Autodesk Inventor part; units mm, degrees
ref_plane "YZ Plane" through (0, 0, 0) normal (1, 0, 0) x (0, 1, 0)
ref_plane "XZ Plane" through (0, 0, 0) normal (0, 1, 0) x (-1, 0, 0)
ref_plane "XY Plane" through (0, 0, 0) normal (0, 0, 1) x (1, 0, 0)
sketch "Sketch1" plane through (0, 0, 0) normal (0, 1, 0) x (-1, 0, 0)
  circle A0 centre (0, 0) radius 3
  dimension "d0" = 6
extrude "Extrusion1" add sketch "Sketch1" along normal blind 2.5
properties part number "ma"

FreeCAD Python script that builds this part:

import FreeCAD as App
import Part
import Sketcher
Q = App.Units.Quantity

doc = App.newDocument("Part")
params = doc.addObject("Spreadsheet::Sheet", "Params")
for row, (alias, value) in enumerate([
    ("sketch1_diameter", "6 mm"),
    ("pad1_length", "2.5 mm"),
], start=1):
    params.set(f"A{row}", alias)
    params.set(f"B{row}", "=" + value)
    params.setAlias(f"B{row}", alias)

body = doc.addObject("PartDesign::Body", "Body")

sketch1 = body.newObject("Sketcher::SketchObject", "Sketch")
sketch1.AttachmentSupport = (doc.getObject("XZ_Plane"), [""])
sketch1.MapMode = "FlatFace"
sketch1.addGeometry(Part.Circle(App.Vector(0, 0, 0), App.Vector(0, 0, 1), 3), False)
sketch1.addConstraint([
    Sketcher.Constraint("Coincident", 0, 3, -1, 1),
    Sketcher.Constraint("Diameter", 0, Q("6 mm")),
])
sketch1.setExpression("Constraints[1]", "Params.sketch1_diameter")
pad1 = body.newObject("PartDesign::Pad", "Pad")
pad1.Profile = sketch1
pad1.setExpression("Length", "Params.pad1_length")
pad1.Reversed = True

doc.recompute()
